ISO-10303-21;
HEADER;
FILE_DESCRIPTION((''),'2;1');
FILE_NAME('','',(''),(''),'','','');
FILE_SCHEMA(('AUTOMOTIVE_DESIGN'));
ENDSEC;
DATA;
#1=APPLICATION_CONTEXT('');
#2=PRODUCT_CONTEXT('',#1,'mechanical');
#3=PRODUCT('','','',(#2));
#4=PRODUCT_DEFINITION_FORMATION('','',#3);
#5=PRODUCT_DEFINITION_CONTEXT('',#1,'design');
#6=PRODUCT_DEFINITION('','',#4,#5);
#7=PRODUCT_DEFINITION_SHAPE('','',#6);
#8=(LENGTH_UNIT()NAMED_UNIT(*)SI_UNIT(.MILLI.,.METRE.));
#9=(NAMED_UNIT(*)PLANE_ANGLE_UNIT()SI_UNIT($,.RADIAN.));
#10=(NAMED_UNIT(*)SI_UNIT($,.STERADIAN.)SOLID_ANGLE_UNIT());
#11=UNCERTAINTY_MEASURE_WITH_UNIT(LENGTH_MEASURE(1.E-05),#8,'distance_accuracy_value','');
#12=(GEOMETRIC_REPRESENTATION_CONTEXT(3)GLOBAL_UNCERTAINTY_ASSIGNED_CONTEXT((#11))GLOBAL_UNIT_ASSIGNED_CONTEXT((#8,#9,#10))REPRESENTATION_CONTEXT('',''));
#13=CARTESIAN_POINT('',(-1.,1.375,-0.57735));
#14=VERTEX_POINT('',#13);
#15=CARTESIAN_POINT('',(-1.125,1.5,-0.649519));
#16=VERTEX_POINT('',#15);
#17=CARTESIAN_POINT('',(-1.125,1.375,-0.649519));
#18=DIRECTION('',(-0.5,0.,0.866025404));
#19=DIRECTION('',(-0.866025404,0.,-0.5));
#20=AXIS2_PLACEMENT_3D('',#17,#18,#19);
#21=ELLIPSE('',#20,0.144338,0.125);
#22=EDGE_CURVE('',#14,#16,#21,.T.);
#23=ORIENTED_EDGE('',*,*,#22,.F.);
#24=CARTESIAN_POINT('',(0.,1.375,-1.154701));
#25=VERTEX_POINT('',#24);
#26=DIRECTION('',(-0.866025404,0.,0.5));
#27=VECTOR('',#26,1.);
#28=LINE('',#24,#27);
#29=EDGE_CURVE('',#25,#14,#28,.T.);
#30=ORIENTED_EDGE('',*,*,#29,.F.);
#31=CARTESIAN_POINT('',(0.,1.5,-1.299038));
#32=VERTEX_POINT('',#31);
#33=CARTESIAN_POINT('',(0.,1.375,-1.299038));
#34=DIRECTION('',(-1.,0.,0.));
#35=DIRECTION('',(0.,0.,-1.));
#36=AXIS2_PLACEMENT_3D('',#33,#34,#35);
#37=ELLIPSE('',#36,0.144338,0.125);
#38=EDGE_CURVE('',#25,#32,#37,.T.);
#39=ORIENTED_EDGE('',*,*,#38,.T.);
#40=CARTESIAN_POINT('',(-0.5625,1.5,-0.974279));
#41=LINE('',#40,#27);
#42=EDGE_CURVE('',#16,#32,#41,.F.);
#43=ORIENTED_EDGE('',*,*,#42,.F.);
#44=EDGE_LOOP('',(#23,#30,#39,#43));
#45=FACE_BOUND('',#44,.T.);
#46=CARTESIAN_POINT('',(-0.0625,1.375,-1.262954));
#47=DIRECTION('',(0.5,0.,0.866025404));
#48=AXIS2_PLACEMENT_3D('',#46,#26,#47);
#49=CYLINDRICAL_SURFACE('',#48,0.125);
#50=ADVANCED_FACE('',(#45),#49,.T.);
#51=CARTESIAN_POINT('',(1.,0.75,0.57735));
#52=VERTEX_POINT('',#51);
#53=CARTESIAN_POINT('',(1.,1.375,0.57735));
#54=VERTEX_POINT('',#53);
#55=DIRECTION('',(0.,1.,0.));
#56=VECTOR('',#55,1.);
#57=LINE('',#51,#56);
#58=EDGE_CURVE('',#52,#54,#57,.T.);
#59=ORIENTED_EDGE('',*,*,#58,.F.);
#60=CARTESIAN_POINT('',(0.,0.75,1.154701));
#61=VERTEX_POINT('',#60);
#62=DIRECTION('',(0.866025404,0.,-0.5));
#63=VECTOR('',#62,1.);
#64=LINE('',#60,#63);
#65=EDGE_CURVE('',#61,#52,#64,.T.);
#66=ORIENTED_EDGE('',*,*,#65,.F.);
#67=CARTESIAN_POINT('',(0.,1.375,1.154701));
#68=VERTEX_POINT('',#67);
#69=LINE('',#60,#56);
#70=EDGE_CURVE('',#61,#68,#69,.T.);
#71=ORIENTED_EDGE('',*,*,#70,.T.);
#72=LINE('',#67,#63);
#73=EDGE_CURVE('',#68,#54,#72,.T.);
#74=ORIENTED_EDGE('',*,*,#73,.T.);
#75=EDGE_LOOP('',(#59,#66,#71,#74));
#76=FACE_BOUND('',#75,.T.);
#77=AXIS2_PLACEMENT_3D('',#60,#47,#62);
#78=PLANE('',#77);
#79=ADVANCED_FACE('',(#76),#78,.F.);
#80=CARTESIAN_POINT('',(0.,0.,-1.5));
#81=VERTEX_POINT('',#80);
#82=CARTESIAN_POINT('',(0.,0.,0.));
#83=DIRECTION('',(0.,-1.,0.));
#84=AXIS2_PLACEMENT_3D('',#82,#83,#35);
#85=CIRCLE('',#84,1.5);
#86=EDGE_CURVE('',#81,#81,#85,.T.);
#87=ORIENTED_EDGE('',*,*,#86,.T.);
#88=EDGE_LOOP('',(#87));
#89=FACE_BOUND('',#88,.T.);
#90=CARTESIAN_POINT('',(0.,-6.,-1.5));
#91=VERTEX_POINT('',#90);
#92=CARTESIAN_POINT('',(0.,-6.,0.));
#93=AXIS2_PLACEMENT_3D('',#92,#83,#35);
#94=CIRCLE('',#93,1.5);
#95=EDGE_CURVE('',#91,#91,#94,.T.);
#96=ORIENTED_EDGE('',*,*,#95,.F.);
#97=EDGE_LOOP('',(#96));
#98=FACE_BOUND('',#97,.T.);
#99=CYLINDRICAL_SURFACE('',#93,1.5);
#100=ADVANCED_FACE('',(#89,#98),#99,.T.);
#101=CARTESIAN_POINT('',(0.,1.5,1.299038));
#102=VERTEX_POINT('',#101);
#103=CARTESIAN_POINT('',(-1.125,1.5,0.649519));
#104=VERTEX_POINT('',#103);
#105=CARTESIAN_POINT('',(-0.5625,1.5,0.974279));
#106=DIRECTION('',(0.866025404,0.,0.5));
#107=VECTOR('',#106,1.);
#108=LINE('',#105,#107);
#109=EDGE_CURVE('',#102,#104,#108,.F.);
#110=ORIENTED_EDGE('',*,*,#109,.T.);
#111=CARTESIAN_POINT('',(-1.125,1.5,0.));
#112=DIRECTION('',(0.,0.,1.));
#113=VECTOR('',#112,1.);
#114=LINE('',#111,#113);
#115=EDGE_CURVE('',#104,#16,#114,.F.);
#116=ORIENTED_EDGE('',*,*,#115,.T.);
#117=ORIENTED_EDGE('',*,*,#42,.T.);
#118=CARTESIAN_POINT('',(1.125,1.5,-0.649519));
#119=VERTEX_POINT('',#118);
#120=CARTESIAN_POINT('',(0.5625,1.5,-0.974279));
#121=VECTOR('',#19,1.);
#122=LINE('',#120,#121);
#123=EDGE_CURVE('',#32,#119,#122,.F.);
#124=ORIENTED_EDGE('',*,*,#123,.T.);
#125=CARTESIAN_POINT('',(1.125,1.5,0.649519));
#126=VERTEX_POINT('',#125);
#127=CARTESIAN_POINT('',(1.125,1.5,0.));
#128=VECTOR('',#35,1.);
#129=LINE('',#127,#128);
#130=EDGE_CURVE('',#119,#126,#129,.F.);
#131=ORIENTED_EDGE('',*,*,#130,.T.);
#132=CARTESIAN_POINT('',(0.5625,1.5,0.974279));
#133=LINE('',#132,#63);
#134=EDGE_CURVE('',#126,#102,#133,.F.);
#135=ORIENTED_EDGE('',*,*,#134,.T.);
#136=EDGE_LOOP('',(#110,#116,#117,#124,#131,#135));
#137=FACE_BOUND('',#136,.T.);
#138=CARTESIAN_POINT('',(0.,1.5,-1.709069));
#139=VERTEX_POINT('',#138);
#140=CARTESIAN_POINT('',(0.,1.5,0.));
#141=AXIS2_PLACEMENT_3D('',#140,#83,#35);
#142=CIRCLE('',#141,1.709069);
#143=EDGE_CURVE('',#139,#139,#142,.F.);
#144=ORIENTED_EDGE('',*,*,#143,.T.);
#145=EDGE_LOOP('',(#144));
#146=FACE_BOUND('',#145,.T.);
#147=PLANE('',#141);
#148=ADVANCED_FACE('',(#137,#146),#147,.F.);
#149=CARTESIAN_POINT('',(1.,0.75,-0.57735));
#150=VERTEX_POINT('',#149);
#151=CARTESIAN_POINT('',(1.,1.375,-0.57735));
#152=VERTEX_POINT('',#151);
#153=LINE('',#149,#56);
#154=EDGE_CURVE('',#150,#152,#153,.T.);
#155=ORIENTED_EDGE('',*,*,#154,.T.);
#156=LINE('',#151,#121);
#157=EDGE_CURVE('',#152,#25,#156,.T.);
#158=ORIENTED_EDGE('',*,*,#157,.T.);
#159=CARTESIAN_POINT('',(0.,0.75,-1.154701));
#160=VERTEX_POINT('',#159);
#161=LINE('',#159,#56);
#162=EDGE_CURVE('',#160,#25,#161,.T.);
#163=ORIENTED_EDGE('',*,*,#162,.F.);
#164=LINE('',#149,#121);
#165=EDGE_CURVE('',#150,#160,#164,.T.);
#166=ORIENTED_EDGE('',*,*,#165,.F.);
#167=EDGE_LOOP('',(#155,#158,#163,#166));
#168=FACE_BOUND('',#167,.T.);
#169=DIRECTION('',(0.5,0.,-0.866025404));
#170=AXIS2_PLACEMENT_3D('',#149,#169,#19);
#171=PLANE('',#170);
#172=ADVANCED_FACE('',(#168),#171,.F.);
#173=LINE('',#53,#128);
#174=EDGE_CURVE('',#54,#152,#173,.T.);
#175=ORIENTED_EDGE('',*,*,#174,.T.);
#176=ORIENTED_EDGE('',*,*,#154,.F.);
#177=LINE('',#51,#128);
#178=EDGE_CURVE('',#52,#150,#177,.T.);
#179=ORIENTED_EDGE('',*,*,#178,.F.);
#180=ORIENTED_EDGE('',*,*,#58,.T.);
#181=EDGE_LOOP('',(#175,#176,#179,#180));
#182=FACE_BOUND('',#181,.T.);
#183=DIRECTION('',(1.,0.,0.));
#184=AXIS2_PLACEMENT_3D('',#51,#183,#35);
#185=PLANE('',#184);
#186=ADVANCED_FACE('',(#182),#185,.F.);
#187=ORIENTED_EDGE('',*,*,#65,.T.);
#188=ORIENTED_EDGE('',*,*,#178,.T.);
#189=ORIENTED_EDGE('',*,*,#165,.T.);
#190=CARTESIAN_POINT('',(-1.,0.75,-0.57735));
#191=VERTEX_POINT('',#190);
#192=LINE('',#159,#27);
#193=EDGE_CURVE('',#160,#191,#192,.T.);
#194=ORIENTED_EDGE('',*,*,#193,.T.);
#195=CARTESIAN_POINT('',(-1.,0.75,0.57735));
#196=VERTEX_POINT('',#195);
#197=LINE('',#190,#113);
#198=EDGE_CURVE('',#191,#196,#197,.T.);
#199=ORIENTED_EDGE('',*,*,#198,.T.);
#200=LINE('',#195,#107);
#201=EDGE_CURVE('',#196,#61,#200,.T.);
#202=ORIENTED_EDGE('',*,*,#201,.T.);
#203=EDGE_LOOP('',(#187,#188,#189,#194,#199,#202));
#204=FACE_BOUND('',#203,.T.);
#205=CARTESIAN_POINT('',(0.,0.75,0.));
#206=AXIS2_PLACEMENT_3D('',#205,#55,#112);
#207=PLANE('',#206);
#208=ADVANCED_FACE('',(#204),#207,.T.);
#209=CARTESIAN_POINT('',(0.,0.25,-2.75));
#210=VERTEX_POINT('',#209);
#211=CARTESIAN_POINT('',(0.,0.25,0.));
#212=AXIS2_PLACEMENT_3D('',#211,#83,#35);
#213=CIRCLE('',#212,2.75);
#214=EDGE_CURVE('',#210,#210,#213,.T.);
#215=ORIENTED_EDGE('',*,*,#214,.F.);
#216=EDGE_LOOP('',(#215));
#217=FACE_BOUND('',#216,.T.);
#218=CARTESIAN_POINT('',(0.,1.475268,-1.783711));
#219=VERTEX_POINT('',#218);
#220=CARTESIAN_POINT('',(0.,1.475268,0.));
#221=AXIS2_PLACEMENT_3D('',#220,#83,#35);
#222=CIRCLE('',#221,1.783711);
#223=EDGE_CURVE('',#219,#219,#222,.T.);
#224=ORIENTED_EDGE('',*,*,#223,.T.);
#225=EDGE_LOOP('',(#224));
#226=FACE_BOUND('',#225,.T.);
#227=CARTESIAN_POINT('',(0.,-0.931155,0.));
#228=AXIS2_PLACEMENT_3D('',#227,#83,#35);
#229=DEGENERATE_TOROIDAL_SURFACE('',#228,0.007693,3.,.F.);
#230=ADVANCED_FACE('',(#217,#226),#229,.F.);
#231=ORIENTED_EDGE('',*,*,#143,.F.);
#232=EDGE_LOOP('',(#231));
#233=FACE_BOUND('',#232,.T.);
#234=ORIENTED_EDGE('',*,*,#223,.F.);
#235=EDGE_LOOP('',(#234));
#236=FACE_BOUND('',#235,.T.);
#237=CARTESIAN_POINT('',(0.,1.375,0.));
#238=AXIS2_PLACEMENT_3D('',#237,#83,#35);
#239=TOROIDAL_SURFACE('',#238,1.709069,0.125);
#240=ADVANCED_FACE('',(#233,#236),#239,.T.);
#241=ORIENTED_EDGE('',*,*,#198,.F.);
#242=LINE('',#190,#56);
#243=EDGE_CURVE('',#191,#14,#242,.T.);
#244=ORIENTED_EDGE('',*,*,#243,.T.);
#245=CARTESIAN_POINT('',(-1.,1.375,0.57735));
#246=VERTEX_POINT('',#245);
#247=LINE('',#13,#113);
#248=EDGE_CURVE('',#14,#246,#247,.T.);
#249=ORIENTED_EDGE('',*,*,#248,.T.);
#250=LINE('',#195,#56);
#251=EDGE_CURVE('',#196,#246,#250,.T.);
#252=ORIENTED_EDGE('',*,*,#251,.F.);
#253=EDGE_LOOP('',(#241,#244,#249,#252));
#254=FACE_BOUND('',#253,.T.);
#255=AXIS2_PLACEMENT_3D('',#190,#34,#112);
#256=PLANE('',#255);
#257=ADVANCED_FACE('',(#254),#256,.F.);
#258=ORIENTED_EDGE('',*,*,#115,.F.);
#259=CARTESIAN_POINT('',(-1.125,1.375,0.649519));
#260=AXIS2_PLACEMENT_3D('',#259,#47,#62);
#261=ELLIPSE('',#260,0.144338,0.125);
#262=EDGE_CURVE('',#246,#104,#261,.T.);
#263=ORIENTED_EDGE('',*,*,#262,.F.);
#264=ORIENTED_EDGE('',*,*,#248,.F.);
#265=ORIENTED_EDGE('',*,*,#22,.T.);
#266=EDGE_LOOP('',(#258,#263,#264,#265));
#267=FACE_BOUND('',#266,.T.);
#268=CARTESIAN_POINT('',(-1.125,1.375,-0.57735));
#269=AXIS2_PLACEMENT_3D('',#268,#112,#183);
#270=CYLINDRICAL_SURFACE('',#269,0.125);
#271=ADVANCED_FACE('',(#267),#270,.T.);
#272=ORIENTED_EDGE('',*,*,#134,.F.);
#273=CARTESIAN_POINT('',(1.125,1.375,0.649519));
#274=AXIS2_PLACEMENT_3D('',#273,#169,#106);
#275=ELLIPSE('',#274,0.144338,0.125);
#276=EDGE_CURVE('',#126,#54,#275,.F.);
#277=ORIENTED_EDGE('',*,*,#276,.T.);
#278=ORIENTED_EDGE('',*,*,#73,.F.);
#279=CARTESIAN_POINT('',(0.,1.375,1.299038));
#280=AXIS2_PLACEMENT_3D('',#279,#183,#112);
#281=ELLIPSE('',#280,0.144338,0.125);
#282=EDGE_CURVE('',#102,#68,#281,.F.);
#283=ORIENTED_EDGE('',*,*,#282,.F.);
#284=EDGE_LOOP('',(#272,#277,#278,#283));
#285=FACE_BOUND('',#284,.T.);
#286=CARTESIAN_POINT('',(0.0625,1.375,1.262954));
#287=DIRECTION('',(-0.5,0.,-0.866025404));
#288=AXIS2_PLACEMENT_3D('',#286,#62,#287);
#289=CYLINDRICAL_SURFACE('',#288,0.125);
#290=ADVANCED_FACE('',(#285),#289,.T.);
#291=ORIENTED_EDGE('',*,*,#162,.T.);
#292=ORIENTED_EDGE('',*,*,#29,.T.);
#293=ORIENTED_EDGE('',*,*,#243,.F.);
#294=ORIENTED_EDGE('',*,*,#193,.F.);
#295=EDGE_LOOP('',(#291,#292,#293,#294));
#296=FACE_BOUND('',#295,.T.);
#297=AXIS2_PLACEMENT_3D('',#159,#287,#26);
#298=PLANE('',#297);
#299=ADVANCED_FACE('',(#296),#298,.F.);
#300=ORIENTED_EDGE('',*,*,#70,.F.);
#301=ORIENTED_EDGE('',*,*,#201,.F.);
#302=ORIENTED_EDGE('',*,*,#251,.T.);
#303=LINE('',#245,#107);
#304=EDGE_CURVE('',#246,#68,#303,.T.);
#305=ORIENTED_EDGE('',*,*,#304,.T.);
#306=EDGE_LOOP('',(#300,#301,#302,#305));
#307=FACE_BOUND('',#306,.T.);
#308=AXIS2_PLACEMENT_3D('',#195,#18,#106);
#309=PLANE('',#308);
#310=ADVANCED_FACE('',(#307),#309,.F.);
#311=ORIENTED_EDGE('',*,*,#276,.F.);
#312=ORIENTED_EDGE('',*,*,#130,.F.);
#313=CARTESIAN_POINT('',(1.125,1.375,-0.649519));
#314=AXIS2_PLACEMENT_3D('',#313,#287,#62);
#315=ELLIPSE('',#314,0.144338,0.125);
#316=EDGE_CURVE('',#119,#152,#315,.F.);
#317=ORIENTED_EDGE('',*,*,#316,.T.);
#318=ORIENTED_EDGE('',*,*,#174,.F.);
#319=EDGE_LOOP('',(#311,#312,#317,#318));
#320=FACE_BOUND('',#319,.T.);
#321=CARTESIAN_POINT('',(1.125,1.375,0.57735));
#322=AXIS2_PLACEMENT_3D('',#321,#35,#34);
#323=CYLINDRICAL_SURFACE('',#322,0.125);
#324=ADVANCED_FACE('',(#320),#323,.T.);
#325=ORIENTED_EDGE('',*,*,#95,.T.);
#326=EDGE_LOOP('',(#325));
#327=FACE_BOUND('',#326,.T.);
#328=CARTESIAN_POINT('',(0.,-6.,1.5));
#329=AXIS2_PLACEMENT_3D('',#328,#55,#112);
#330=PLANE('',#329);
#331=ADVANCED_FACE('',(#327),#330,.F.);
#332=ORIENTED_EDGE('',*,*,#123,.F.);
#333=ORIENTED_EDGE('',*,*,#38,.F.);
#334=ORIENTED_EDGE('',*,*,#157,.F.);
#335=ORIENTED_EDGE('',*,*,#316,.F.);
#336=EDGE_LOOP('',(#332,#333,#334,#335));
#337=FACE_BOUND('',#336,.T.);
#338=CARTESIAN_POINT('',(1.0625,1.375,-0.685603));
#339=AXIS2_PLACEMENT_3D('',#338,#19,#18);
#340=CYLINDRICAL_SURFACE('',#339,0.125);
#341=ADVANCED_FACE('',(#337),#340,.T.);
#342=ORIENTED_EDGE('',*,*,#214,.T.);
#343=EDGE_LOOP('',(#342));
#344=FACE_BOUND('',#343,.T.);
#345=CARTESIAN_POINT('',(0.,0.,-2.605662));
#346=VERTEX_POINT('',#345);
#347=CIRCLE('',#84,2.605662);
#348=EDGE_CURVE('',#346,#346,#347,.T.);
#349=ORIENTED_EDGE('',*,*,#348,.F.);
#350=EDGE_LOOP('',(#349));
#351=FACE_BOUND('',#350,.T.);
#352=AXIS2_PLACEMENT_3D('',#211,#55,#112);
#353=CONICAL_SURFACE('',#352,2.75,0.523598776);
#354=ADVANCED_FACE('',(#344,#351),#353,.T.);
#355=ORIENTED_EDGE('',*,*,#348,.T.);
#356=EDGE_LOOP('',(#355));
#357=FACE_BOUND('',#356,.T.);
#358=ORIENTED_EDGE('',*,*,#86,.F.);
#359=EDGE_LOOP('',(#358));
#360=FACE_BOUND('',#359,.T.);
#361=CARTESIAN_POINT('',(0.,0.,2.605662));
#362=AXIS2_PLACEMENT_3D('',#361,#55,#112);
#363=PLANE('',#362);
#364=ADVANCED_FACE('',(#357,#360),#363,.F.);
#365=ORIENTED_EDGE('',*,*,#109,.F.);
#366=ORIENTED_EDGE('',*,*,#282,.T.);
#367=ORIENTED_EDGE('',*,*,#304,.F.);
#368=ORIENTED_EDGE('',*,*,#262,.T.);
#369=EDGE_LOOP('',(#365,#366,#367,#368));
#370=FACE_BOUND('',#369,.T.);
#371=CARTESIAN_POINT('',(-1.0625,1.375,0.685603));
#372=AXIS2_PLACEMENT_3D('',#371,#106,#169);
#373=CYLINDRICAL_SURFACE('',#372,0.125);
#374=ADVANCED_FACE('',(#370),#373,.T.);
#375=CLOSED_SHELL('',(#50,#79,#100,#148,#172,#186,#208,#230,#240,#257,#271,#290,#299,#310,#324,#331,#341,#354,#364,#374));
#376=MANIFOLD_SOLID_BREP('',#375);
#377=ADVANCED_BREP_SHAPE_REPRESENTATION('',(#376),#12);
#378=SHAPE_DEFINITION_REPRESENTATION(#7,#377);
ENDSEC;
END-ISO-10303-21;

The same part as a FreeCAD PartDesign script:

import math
import FreeCAD as App
import Part
import Sketcher
Q = App.Units.Quantity


def edges_at(feature, points):
    """Names of the edges that pass closest to the given points."""
    edges = feature.Shape.Edges
    near = lambda p: min(range(len(edges)), key=lambda i: edges[i].distToShape(Part.Vertex(*p))[0])
    return sorted({f"Edge{near(p) + 1}" for p in points})


def add_polygon(sketch, points):
    """Adds a closed chain of lines whose ends are joined by coincident constraints."""
    first, n = sketch.GeometryCount, len(points)
    for a, b in zip(points, points[1:] + points[:1]):
        sketch.addGeometry(Part.LineSegment(App.Vector(*a, 0), App.Vector(*b, 0)), False)
    for i in range(n):
        sketch.addConstraint(Sketcher.Constraint("Coincident", first + i, 2, first + (i + 1) % n, 1))

doc = App.newDocument("Part")
body = doc.addObject("PartDesign::Body", "Body")

sketch1 = doc.addObject("Sketcher::SketchObject", "Sketch")
body.addObject(sketch1)
sketch1.AttachmentSupport = (doc.YZ_Plane, [""])
sketch1.MapMode = "FlatFace"
sketch1.addGeometry([
    Part.LineSegment(App.Vector(1.5, 0, 0), App.Vector(1.5, 1.75, 0)),
    Part.ArcOfCircle(Part.Circle(App.Vector(-0.93, -0.01, 0), App.Vector(0, 0, 1), 3), math.radians(36), math.radians(67)),
    Part.LineSegment(App.Vector(0.25, 2.75, 0), App.Vector(0, 2.61, 0)),
    Part.LineSegment(App.Vector(0, 2.61, 0), App.Vector(0, 1.5, 0)),
    Part.LineSegment(App.Vector(0, 1.5, 0), App.Vector(-6, 1.5, 0)),
    Part.LineSegment(App.Vector(-6, 1.5, 0), App.Vector(-6, 0, 0)),
    Part.LineSegment(App.Vector(-6, 0, 0), App.Vector(1.5, 0, 0)),
], False)
sketch1.addConstraint([
    Sketcher.Constraint("Coincident", 0, 2, 1, 1),
    Sketcher.Constraint("Coincident", 1, 2, 2, 1),
    Sketcher.Constraint("Coincident", 2, 2, 3, 1),
    Sketcher.Constraint("Coincident", 3, 2, 4, 1),
    Sketcher.Constraint("Coincident", 4, 2, 5, 1),
    Sketcher.Constraint("Coincident", 5, 2, 6, 1),
    Sketcher.Constraint("Coincident", 6, 2, 0, 1),
    Sketcher.Constraint("Vertical", 0),
    Sketcher.Constraint("Vertical", 3),
    Sketcher.Constraint("Horizontal", 4),
    Sketcher.Constraint("Vertical", 5),
    Sketcher.Constraint("Horizontal", 6),
    Sketcher.Constraint("PointOnObject", 2, 2, -2),
    Sketcher.Constraint("PointOnObject", 5, 2, -1),
    Sketcher.Constraint("Radius", 1, 3.0),
    Sketcher.Constraint("DistanceX", 4, 2, 4, 1, 6.0),
    Sketcher.Constraint("Angle", 2, Q("-150 deg")),
    Sketcher.Constraint("DistanceX", 6, 1, 6, 2, 7.5),
    Sketcher.Constraint("DistanceY", 5, 2, 5, 1, 1.5),
    Sketcher.Constraint("DistanceY", 0, 2, 1, 2, 1.0),
    Sketcher.Constraint("DistanceY", 0, 1, 0, 2, 1.75),
    Sketcher.Constraint("DistanceX", -1, 1, 1, 2, 0.25),
])
revolution = doc.addObject("PartDesign::Revolution", "Revolution")
body.addObject(revolution)
revolution.Profile = sketch1
revolution.ReferenceAxis = (sketch1, ["H_Axis"])
revolution.Angle = 360

sketch2 = doc.addObject("Sketcher::SketchObject", "Sketch001")
body.addObject(sketch2)
sketch2.AttachmentSupport = (doc.XZ_Plane, [""])
sketch2.MapMode = "FlatFace"
sketch2.AttachmentOffset = App.Placement(App.Vector(0, 0, -1.5), App.Rotation())
add_polygon(sketch2, [(0, -1.2), (-1, -0.6), (-1, 0.6), (0, 1.2), (1, 0.6), (1, -0.6)])
sketch2.addConstraint([
    Sketcher.Constraint("Vertical", 1),
    Sketcher.Constraint("Vertical", 4),
    Sketcher.Constraint("Symmetric", 0, 2, 3, 2, -1, 1),
    Sketcher.Constraint("Symmetric", 2, 2, 5, 2, -1, 1),
    Sketcher.Constraint("PointOnObject", 2, 2, -2),
    Sketcher.Constraint("Parallel", 2, 5),
    Sketcher.Constraint("Horizontal", 1, 2, 3, 2),
    Sketcher.Constraint("Angle", 0, Q("150 deg")),
    Sketcher.Constraint("DistanceX", 0, 2, -1, 1, 1.0),
    Sketcher.Constraint("DistanceY", 1, 1, 1, 2, 1.154701),
])
pocket1 = doc.addObject("PartDesign::Pocket", "Pocket")
body.addObject(pocket1)
pocket1.Profile = sketch2
pocket1.Length = 0.75
pocket1.Reversed = True
doc.recompute()

fillet = doc.addObject("PartDesign::Fillet", "Fillet")
body.addObject(fillet)
fillet.Base = (pocket1, edges_at(pocket1, [
    (0.5, 1.5, -0.866),
    (-0.5, 1.5, -0.866),
    (-1, 1.5, 0),
    (-0.5, 1.5, 0.866),
    (0.5, 1.5, 0.866),
    (1, 1.5, 0),
    (0, 1.5, 1.75),
]))
fillet.Radius = 0.125

doc.recompute()
